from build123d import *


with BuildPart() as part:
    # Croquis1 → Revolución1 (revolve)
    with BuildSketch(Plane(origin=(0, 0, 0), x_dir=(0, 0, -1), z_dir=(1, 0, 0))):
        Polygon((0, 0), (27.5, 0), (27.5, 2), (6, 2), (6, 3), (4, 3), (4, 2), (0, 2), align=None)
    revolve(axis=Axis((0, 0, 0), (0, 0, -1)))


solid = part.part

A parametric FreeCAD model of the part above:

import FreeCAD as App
import Part
import Sketcher
from FreeCAD import Vector


def add_polygon(sketch, points):
    """Adds a closed chain of lines whose ends are joined by coincident constraints."""
    first, n = sketch.GeometryCount, len(points)
    for a, b in zip(points, points[1:] + points[:1]):
        sketch.addGeometry(Part.LineSegment(App.Vector(*a, 0), App.Vector(*b, 0)), False)
    for i in range(n):
        sketch.addConstraint(Sketcher.Constraint("Coincident", first + i, 2, first + (i + 1) % n, 1))

doc = App.newDocument("Part")
body = doc.addObject("PartDesign::Body", "Body")

# Sketch on YZ plane
sketch1 = body.newObject("Sketcher::SketchObject", "Sketch")
sketch1.AttachmentSupport = (doc.getObject("YZ_Plane"), [""])
sketch1.MapMode = "FlatFace"
add_polygon(sketch1, [(0, 0), (0, -27.5), (2, -27.5), (2, -6), (3, -6), (3, -4), (2, -4), (2, 0)])  # lines 0-7
sketch1.addConstraint([
    Sketcher.Constraint("Vertical", 0),
    Sketcher.Constraint("Horizontal", 1),
    Sketcher.Constraint("Vertical", 2),
    Sketcher.Constraint("Horizontal", 3),
    Sketcher.Constraint("Vertical", 4),
    Sketcher.Constraint("Horizontal", 5),
    Sketcher.Constraint("Vertical", 6),
    Sketcher.Constraint("Horizontal", 7),
    Sketcher.Constraint("Coincident", 7, 2, -1, 1),
    Sketcher.Constraint("Vertical", 2, 2, 5, 2),
    Sketcher.Constraint("Equal", 7, 4),
    Sketcher.Constraint("DistanceX", 1, 1, 1, 2, 2.0),
    Sketcher.Constraint("DistanceX", 3, 1, 3, 2, 1.0),
    Sketcher.Constraint("DistanceY", 6, 1, 6, 2, 4.0),
    Sketcher.Constraint("DistanceY", 0, 2, 0, 1, 27.5),
])
revolution = body.newObject("PartDesign::Revolution", "Revolution")
revolution.Profile = sketch1
revolution.ReferenceAxis = (sketch1, ["V_Axis"])
revolution.Angle = 360

doc.recompute()
